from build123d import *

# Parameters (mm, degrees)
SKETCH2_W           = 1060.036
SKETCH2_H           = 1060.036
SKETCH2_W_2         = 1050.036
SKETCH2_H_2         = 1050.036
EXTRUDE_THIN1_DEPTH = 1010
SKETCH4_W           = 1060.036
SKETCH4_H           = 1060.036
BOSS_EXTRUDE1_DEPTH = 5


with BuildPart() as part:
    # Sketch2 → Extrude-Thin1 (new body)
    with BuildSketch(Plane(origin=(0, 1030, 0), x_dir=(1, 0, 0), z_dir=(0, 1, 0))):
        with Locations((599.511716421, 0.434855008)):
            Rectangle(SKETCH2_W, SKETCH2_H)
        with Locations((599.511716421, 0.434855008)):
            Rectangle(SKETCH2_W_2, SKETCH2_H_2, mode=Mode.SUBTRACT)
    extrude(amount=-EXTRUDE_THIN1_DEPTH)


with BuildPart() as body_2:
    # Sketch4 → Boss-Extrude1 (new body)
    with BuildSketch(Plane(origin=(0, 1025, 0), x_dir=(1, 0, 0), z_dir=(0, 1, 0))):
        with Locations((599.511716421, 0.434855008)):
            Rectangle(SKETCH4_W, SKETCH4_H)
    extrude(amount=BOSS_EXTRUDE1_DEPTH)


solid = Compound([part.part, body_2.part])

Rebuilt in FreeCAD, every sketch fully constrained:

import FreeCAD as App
import Part
import Sketcher
from FreeCAD import Vector


def add_polygon(sketch, points):
    """Adds a closed chain of lines whose ends are joined by coincident constraints."""
    first, n = sketch.GeometryCount, len(points)
    for a, b in zip(points, points[1:] + points[:1]):
        sketch.addGeometry(Part.LineSegment(App.Vector(*a, 0), App.Vector(*b, 0)), False)
    for i in range(n):
        sketch.addConstraint(Sketcher.Constraint("Coincident", first + i, 2, first + (i + 1) % n, 1))

doc = App.newDocument("Part")
body = doc.addObject("PartDesign::Body", "Body")

# Sketch on XZ plane
sketch1 = doc.addObject("Sketcher::SketchObject", "Sketch")
body.addObject(sketch1)
sketch1.AttachmentSupport = (doc.XZ_Plane, [""])
sketch1.MapMode = "FlatFace"
sketch1.AttachmentOffset = App.Placement(Vector(0, 0, -1030), App.Rotation())
add_polygon(sketch1, [(69.493716, -530.452855), (69.493716, 529.583145), (1129.529716, 529.583145), (1129.529716, -530.452855)])  # lines 0-3
add_polygon(sketch1, [(1124.529716, 524.583145), (74.493716, 524.583145), (74.493716, -525.452855), (1124.529716, -525.452855)])  # lines 4-7
sketch1.addConstraint([
    Sketcher.Constraint("Vertical", 0),
    Sketcher.Constraint("Horizontal", 1),
    Sketcher.Constraint("Vertical", 2),
    Sketcher.Constraint("Horizontal", 3),
    Sketcher.Constraint("Horizontal", 4),
    Sketcher.Constraint("Vertical", 5),
    Sketcher.Constraint("Horizontal", 6),
    Sketcher.Constraint("Vertical", 7),
    Sketcher.Constraint("Equal", 3, 0),
    Sketcher.Constraint("Equal", 6, 5),
    Sketcher.Constraint("DistanceX", 0, 2, 4, 2, 5.0),
    Sketcher.Constraint("DistanceY", 4, 2, 0, 2, 5.0),
    Sketcher.Constraint("DistanceY", 3, 2, 5, 2, 5.0),
    Sketcher.Constraint("DistanceX", 1, 1, 1, 2, 1060.036),
    Sketcher.Constraint("DistanceX", -1, 1, 0, 2, 69.493716),
    Sketcher.Constraint("DistanceY", -1, 1, 0, 2, 529.583145),
])
pad1 = doc.addObject("PartDesign::Pad", "Pad")
body.addObject(pad1)
pad1.Profile = sketch1
pad1.Length = 1010
body2 = doc.addObject("PartDesign::Body", "Body001")

# Sketch on XZ plane
sketch2 = doc.addObject("Sketcher::SketchObject", "Sketch001")
body2.addObject(sketch2)
sketch2.AttachmentSupport = (doc.getObject("XZ_Plane001"), [""])
sketch2.MapMode = "FlatFace"
sketch2.AttachmentOffset = App.Placement(Vector(0, 0, -1025), App.Rotation())
add_polygon(sketch2, [(69.493716, -530.452855), (69.493716, 529.583145), (1129.529716, 529.583145), (1129.529716, -530.452855)])  # lines 0-3
sketch2.addConstraint([
    Sketcher.Constraint("Vertical", 0),
    Sketcher.Constraint("Horizontal", 1),
    Sketcher.Constraint("Vertical", 2),
    Sketcher.Constraint("Horizontal", 3),
    Sketcher.Constraint("Equal", 3, 0),
    Sketcher.Constraint("DistanceX", 1, 1, 1, 2, 1060.036),
    Sketcher.Constraint("DistanceX", -1, 1, 0, 2, 69.493716),
    Sketcher.Constraint("DistanceY", -1, 1, 0, 2, 529.583145),
])
pad2 = doc.addObject("PartDesign::Pad", "Pad001")
body2.addObject(pad2)
pad2.Profile = sketch2
pad2.Length = 5
pad2.Reversed = True

doc.recompute()
